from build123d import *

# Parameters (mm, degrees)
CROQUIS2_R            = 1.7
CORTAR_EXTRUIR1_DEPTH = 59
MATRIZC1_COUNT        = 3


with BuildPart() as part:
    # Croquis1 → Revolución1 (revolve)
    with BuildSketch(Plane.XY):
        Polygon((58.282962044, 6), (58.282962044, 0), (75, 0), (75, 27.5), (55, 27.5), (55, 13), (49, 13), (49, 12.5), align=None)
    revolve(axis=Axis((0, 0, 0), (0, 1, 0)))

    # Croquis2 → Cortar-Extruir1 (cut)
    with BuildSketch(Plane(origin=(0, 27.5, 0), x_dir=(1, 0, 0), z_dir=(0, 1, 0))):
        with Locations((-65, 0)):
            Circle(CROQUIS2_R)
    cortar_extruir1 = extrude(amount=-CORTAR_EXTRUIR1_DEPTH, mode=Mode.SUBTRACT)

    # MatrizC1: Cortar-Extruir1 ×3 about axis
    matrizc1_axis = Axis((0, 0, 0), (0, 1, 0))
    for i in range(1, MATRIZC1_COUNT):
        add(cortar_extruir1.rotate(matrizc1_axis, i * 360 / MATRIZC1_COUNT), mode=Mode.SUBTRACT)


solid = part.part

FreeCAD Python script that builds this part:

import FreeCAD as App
import Part
import Sketcher

V = App.Vector
Q = App.Units.Quantity

doc = App.newDocument("Part")
params = doc.addObject("Spreadsheet::Sheet", "Params")
for row, (alias, value) in enumerate([
    ("sketch1_width", "20 mm"),
    ("sketch1_width2", "6 mm"),
    ("sketch1_height", "27.5 mm"),
    ("sketch1_height2", "14.5 mm"),
    ("sketch1_height3", "0.5 mm"),
    ("revolution_angle", "360 deg"),
    ("sketch2_diameter", "3.4 mm"),
    ("pocket1_length", "59 mm"),
], start=1):
    params.set(f"A{row}", alias)
    params.set(f"B{row}", "=" + value)
    params.setAlias(f"B{row}", alias)

body = doc.addObject("PartDesign::Body", "Body")

sketch1 = doc.addObject("Sketcher::SketchObject", "Sketch")
body.addObject(sketch1)
sketch1.AttachmentSupport = (doc.XY_Plane, [""])
sketch1.MapMode = "FlatFace"
sketch1.addGeometry(Part.LineSegment(V(58.3, 6, 0), V(58.3, 0, 0)), False)
sketch1.addGeometry(Part.LineSegment(V(58.3, 0, 0), V(75, 0, 0)), False)
sketch1.addGeometry(Part.LineSegment(V(75, 0, 0), V(75, 27.5, 0)), False)
sketch1.addGeometry(Part.LineSegment(V(75, 27.5, 0), V(55, 27.5, 0)), False)
sketch1.addGeometry(Part.LineSegment(V(55, 27.5, 0), V(55, 13, 0)), False)
sketch1.addGeometry(Part.LineSegment(V(55, 13, 0), V(49, 13, 0)), False)
sketch1.addGeometry(Part.LineSegment(V(49, 13, 0), V(49, 12.5, 0)), False)
sketch1.addGeometry(Part.LineSegment(V(49, 12.5, 0), V(58.3, 6, 0)), False)
sketch1.addConstraint(Sketcher.Constraint("Coincident", 0, 2, 1, 1))
sketch1.addConstraint(Sketcher.Constraint("Coincident", 1, 2, 2, 1))
sketch1.addConstraint(Sketcher.Constraint("Coincident", 2, 2, 3, 1))
sketch1.addConstraint(Sketcher.Constraint("Coincident", 3, 2, 4, 1))
sketch1.addConstraint(Sketcher.Constraint("Coincident", 4, 2, 5, 1))
sketch1.addConstraint(Sketcher.Constraint("Coincident", 5, 2, 6, 1))
sketch1.addConstraint(Sketcher.Constraint("Coincident", 6, 2, 7, 1))
sketch1.addConstraint(Sketcher.Constraint("Coincident", 7, 2, 0, 1))
sketch1.addConstraint(Sketcher.Constraint("Vertical", 0))
sketch1.addConstraint(Sketcher.Constraint("Horizontal", 1))
sketch1.addConstraint(Sketcher.Constraint("Vertical", 2))
sketch1.addConstraint(Sketcher.Constraint("Horizontal", 3))
sketch1.addConstraint(Sketcher.Constraint("Vertical", 4))
sketch1.addConstraint(Sketcher.Constraint("Horizontal", 5))
sketch1.addConstraint(Sketcher.Constraint("Vertical", 6))
sketch1.addConstraint(Sketcher.Constraint("PointOnObject", 0, 2, -1))
sketch1.addConstraint(Sketcher.Constraint("Equal", 5, 0))
sketch1.addConstraint(Sketcher.Constraint("DistanceX", 3, 2, 3, 1, Q("20 mm")))
sketch1.addConstraint(Sketcher.Constraint("DistanceX", 5, 2, 5, 1, Q("6 mm")))
sketch1.addConstraint(Sketcher.Constraint("Angle", 7, Q("-35 deg")))
sketch1.addConstraint(Sketcher.Constraint("DistanceY", 2, 1, 2, 2, Q("27.5 mm")))
sketch1.addConstraint(Sketcher.Constraint("DistanceY", 4, 2, 4, 1, Q("14.5 mm")))
sketch1.addConstraint(Sketcher.Constraint("DistanceY", 6, 2, 6, 1, Q("0.5 mm")))
sketch1.addConstraint(Sketcher.Constraint("DistanceX", -1, 1, 1, 2, Q("75 mm")))
sketch1.setExpression("Constraints[17]", "Params.sketch1_width")
sketch1.setExpression("Constraints[18]", "Params.sketch1_width2")
sketch1.setExpression("Constraints[20]", "Params.sketch1_height")
sketch1.setExpression("Constraints[21]", "Params.sketch1_height2")
sketch1.setExpression("Constraints[22]", "Params.sketch1_height3")
revolution = doc.addObject("PartDesign::Revolution", "Revolution")
body.addObject(revolution)
revolution.Profile = sketch1
revolution.ReferenceAxis = (sketch1, ["V_Axis"])
revolution.setExpression("Angle", "Params.revolution_angle")

sketch2 = doc.addObject("Sketcher::SketchObject", "Sketch001")
body.addObject(sketch2)
sketch2.AttachmentSupport = (doc.XZ_Plane, [""])
sketch2.MapMode = "FlatFace"
sketch2.AttachmentOffset = App.Placement(V(0, 0, -27.5), App.Rotation())
sketch2.addGeometry(Part.Circle(V(-65, 0, 0), V(0, 0, 1), 1.7), False)
sketch2.addConstraint(Sketcher.Constraint("PointOnObject", 0, 3, -1))
sketch2.addConstraint(Sketcher.Constraint("Diameter", 0, Q("3.4 mm")))
sketch2.addConstraint(Sketcher.Constraint("DistanceX", 0, 3, -1, 1, Q("65 mm")))
sketch2.setExpression("Constraints[1]", "Params.sketch2_diameter")
pocket1 = doc.addObject("PartDesign::Pocket", "Pocket")
body.addObject(pocket1)
pocket1.Profile = sketch2
pocket1.setExpression("Length", "Params.pocket1_length")
pocket1.Reversed = True
doc.recompute()

polarpattern = doc.addObject("PartDesign::PolarPattern", "PolarPattern")
body.addObject(polarpattern)
polarpattern.Originals = [pocket1]
polarpattern.Axis = (doc.Y_Axis, [""])
polarpattern.Angle = 360
polarpattern.Occurrences = 3
body.Tip = polarpattern

doc.recompute()
